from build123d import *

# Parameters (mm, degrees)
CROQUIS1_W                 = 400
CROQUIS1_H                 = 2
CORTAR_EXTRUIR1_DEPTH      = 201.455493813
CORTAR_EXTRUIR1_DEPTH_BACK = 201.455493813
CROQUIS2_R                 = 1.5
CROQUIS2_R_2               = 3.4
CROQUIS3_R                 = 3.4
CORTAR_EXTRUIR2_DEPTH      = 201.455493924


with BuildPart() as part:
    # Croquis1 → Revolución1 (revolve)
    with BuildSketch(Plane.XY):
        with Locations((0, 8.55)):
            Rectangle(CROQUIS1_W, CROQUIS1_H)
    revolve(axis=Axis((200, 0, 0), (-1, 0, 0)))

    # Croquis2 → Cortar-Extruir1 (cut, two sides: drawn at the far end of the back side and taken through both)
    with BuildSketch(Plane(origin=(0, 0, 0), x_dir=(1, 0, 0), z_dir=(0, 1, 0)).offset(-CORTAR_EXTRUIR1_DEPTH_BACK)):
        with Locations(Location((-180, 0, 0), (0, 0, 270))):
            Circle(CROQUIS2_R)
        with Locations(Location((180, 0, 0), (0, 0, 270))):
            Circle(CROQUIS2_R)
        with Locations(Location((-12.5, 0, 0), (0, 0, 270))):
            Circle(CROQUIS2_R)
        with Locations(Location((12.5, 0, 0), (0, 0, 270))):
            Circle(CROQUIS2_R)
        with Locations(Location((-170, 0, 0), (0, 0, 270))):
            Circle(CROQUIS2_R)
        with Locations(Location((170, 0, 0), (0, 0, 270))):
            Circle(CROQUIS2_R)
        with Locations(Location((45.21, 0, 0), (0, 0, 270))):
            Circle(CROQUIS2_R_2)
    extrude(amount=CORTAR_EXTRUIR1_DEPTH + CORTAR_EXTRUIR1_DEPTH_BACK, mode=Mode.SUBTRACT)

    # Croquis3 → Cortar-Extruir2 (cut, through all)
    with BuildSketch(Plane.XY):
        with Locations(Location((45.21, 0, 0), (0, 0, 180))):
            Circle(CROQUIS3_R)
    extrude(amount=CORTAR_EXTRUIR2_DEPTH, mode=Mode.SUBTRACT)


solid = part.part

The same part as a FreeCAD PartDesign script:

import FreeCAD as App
import Part
import Sketcher

V = App.Vector
Q = App.Units.Quantity

doc = App.newDocument("Part")
params = doc.addObject("Spreadsheet::Sheet", "Params")
for row, (alias, value) in enumerate([
    ("sketch1_width", "400 mm"),
    ("sketch1_height", "2 mm"),
    ("revolution_angle", "360 deg"),
    ("sketch2_diameter", "3 mm"),
    ("sketch2_diameter2", "6.8 mm"),
    ("sketch3_diameter", "6.8 mm"),
], start=1):
    params.set(f"A{row}", alias)
    params.set(f"B{row}", "=" + value)
    params.setAlias(f"B{row}", alias)

body = doc.addObject("PartDesign::Body", "Body")

sketch1 = body.newObject("Sketcher::SketchObject", "Sketch")
sketch1.AttachmentSupport = (doc.getObject("XY_Plane"), [""])
sketch1.MapMode = "FlatFace"
sketch1.addGeometry([
    Part.LineSegment(V(-200, 9.6, 0), V(-200, 7.5, 0)),
    Part.LineSegment(V(-200, 7.5, 0), V(200, 7.5, 0)),
    Part.LineSegment(V(200, 7.5, 0), V(200, 9.6, 0)),
    Part.LineSegment(V(200, 9.6, 0), V(-200, 9.6, 0)),
], False)
sketch1.addConstraint([
    Sketcher.Constraint("Coincident", 0, 2, 1, 1),
    Sketcher.Constraint("Coincident", 1, 2, 2, 1),
    Sketcher.Constraint("Coincident", 2, 2, 3, 1),
    Sketcher.Constraint("Coincident", 3, 2, 0, 1),
    Sketcher.Constraint("Vertical", 0),
    Sketcher.Constraint("Horizontal", 1),
    Sketcher.Constraint("Vertical", 2),
    Sketcher.Constraint("Horizontal", 3),
    Sketcher.Constraint("DistanceX", 1, 1, 1, 2, Q("400 mm")),
    Sketcher.Constraint("DistanceY", 0, 2, 0, 1, Q("2 mm")),
    Sketcher.Constraint("DistanceX", 0, 2, -1, 1, Q("200 mm")),
    Sketcher.Constraint("DistanceY", -1, 1, 0, 2, Q("7.55 mm")),
])
sketch1.setExpression("Constraints[8]", "Params.sketch1_width")
sketch1.setExpression("Constraints[9]", "Params.sketch1_height")
revolution = body.newObject("PartDesign::Revolution", "Revolution")
revolution.Profile = sketch1
revolution.ReferenceAxis = (sketch1, ["H_Axis"])
revolution.setExpression("Angle", "Params.revolution_angle")

sketch2 = body.newObject("Sketcher::SketchObject", "Sketch001")
sketch2.AttachmentSupport = (doc.getObject("XZ_Plane"), [""])
sketch2.MapMode = "FlatFace"
sketch2.addGeometry([
    Part.Circle(V(-180, 0, 0), V(0, 0, 1), 1.5),
    Part.Circle(V(180, 0, 0), V(0, 0, 1), 1.5),
    Part.Circle(V(-12.5, 0, 0), V(0, 0, 1), 1.5),
    Part.Circle(V(12.5, 0, 0), V(0, 0, 1), 1.5),
    Part.Circle(V(-170, 0, 0), V(0, 0, 1), 1.5),
    Part.Circle(V(170, 0, 0), V(0, 0, 1), 1.5),
    Part.Circle(V(45.2, 0, 0), V(0, 0, 1), 3.4),
], False)
sketch2.addConstraint([
    Sketcher.Constraint("Equal", 0, 1),
    Sketcher.Constraint("Equal", 1, 2),
    Sketcher.Constraint("Equal", 2, 3),
    Sketcher.Constraint("Equal", 3, 4),
    Sketcher.Constraint("Equal", 4, 5),
    Sketcher.Constraint("Symmetric", 0, 3, 1, 3, -1, 1),
    Sketcher.Constraint("Symmetric", 2, 3, 3, 3, -1, 1),
    Sketcher.Constraint("Symmetric", 4, 3, 5, 3, -1, 1),
    Sketcher.Constraint("PointOnObject", 0, 3, -1),
    Sketcher.Constraint("PointOnObject", 2, 3, -1),
    Sketcher.Constraint("PointOnObject", 4, 3, -1),
    Sketcher.Constraint("PointOnObject", 6, 3, -1),
    Sketcher.Constraint("Diameter", 0, Q("3 mm")),
    Sketcher.Constraint("Diameter", 6, Q("6.8 mm")),
    Sketcher.Constraint("DistanceX", 0, 3, -1, 1, Q("180 mm")),
    Sketcher.Constraint("DistanceX", 4, 3, -1, 1, Q("170 mm")),
    Sketcher.Constraint("DistanceX", 2, 3, 3, 3, Q("25 mm")),
    Sketcher.Constraint("DistanceX", -1, 1, 6, 3, Q("45.21 mm")),
])
sketch2.setExpression("Constraints[12]", "Params.sketch2_diameter")
sketch2.setExpression("Constraints[13]", "Params.sketch2_diameter2")
pocket1 = body.newObject("PartDesign::Pocket", "Pocket")
pocket1.Profile = sketch2
pocket1.Type = "ThroughAll"
pocket1.Midplane = True

sketch3 = body.newObject("Sketcher::SketchObject", "Sketch002")
sketch3.AttachmentSupport = (doc.getObject("XY_Plane"), [""])
sketch3.MapMode = "FlatFace"
sketch3.addGeometry(Part.Circle(V(45.2, 0, 0), V(0, 0, 1), 3.4), False)
sketch3.addConstraint([
    Sketcher.Constraint("PointOnObject", 0, 3, -1),
    Sketcher.Constraint("Diameter", 0, Q("6.8 mm")),
    Sketcher.Constraint("DistanceX", -1, 1, 0, 3, Q("45.21 mm")),
])
sketch3.setExpression("Constraints[1]", "Params.sketch3_diameter")
pocket2 = body.newObject("PartDesign::Pocket", "Pocket001")
pocket2.Profile = sketch3
pocket2.Type = "ThroughAll"
pocket2.Reversed = True

doc.recompute()
